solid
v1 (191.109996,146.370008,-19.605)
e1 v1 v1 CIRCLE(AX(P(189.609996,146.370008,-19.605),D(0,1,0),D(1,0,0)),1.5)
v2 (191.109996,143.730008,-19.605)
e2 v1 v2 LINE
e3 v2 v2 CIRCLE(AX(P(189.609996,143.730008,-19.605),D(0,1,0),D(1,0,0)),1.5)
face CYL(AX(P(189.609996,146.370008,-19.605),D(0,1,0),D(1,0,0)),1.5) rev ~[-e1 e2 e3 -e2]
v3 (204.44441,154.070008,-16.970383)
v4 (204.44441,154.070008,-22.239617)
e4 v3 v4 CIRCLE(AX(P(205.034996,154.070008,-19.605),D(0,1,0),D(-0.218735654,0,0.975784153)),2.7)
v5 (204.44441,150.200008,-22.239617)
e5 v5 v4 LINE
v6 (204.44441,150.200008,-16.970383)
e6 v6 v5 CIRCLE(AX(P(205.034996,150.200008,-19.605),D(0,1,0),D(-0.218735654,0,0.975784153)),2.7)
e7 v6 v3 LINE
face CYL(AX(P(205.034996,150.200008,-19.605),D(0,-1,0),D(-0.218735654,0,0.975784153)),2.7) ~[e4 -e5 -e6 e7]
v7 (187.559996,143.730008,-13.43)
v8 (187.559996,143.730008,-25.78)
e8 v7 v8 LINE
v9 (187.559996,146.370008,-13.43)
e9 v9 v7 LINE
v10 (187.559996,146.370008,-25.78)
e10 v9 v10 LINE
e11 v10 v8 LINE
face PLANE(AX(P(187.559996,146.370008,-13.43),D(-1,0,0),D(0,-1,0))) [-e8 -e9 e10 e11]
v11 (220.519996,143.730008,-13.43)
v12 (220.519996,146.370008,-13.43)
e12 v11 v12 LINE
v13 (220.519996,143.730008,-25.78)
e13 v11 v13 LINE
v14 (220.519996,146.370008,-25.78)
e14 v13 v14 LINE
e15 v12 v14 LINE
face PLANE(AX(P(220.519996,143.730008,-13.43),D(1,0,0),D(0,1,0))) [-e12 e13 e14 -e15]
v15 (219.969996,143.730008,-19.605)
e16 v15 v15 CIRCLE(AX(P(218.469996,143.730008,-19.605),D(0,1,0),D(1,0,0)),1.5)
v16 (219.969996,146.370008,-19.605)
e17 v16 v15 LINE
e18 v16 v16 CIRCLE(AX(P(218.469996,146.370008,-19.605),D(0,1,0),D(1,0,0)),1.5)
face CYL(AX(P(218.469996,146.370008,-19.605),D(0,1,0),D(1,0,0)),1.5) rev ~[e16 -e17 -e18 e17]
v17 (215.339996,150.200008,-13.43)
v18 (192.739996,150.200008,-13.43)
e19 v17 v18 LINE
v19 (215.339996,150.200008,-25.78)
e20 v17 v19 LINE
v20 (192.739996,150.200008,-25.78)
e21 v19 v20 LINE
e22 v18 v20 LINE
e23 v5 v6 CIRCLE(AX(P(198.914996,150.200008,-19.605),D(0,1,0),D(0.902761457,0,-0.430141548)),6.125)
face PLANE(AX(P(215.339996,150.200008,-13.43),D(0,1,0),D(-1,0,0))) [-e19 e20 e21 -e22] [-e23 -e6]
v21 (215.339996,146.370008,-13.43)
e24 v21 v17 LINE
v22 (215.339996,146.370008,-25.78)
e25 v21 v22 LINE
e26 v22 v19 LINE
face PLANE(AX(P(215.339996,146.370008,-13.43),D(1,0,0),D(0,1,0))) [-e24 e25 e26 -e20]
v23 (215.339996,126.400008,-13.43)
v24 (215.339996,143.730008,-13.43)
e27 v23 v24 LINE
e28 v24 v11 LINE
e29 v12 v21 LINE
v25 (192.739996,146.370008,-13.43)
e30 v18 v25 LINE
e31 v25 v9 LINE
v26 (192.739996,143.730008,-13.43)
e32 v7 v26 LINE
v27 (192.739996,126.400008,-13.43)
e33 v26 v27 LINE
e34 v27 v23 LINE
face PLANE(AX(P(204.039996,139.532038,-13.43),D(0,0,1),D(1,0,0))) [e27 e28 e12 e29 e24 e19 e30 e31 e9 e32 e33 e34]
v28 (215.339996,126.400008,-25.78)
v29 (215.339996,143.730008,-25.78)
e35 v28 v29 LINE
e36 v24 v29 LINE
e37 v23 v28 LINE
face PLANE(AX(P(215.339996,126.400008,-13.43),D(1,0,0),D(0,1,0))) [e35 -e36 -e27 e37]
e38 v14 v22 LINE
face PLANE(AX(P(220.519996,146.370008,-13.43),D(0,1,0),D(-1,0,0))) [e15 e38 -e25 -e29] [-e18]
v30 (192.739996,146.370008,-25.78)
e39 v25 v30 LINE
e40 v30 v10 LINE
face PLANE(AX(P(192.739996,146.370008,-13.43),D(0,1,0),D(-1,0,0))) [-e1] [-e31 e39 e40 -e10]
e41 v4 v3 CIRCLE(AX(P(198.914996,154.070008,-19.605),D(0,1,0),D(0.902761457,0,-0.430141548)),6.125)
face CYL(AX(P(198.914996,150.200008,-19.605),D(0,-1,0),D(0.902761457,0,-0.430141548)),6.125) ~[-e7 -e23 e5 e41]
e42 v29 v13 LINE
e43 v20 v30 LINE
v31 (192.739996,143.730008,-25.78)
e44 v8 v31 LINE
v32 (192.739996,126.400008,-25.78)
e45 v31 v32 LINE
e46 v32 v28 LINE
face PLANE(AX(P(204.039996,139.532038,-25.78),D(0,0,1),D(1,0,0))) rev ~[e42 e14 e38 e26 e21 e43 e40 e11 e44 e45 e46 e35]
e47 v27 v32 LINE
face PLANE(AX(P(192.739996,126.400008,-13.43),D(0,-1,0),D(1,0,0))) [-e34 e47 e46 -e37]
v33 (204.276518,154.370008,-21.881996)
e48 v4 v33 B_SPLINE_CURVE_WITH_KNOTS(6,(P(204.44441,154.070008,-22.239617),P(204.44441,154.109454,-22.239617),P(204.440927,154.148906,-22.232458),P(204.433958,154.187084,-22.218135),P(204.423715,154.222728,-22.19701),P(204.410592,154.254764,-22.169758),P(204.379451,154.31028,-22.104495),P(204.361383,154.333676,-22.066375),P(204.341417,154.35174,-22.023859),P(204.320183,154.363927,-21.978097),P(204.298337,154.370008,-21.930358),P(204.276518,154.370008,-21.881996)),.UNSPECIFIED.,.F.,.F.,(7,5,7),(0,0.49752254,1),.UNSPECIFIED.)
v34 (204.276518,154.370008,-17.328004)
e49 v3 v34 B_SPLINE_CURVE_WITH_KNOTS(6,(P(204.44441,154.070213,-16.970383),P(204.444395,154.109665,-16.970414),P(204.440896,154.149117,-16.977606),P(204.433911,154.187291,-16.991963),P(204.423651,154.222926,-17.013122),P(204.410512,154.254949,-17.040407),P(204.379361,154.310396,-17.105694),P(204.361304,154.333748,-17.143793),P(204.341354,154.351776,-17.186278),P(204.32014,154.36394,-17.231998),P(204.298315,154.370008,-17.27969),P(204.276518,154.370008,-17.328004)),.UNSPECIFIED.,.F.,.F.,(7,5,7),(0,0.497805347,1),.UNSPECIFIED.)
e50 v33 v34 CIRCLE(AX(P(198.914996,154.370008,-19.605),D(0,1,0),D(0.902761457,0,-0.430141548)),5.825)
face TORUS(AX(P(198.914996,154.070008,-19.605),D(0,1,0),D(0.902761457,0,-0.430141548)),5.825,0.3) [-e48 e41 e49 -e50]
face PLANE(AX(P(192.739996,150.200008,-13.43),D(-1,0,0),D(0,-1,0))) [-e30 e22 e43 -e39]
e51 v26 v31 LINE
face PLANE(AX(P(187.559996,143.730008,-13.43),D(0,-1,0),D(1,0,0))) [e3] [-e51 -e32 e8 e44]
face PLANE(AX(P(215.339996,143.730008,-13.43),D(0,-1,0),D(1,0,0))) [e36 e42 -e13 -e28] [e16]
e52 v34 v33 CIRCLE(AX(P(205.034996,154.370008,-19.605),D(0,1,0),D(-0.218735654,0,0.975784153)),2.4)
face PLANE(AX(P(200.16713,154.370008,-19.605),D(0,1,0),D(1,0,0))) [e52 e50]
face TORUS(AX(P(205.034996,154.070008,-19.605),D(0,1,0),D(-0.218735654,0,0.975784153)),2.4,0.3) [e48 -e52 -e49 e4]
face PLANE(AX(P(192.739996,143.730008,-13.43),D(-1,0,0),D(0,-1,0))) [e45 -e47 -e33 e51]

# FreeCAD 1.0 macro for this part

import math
import FreeCAD as App
import Part
import Sketcher

V = App.Vector
Q = App.Units.Quantity


def edges_at(feature, points):
    """Names of the edges that pass closest to the given points."""
    edges = feature.Shape.Edges
    near = lambda p: min(range(len(edges)), key=lambda i: edges[i].distToShape(Part.Vertex(*p))[0])
    return sorted({f"Edge{near(p) + 1}" for p in points})

doc = App.newDocument("Part")
body = doc.addObject("PartDesign::Body", "Body")

# Sketch on XY plane
sketch1 = body.newObject("Sketcher::SketchObject", "Sketch")
sketch1.AttachmentSupport = (doc.getObject("XY_Plane"), [""])
sketch1.MapMode = "FlatFace"
sketch1.addGeometry(Part.LineSegment(V(22.6, 23.8, 0), V(0, 23.8, 0)), False)
sketch1.addGeometry(Part.LineSegment(V(0, 23.8, 0), V(0, 20, 0)), False)
sketch1.addGeometry(Part.LineSegment(V(0, 20, 0), V(-5.2, 20, 0)), False)
sketch1.addGeometry(Part.LineSegment(V(-5.2, 20, 0), V(-5.2, 17.3, 0)), False)
sketch1.addGeometry(Part.LineSegment(V(-5.2, 17.3, 0), V(0, 17.3, 0)), False)
sketch1.addGeometry(Part.LineSegment(V(0, 17.3, 0), V(0, 0, 0)), False)
sketch1.addGeometry(Part.LineSegment(V(0, 0, 0), V(22.6, 0, 0)), False)
sketch1.addGeometry(Part.LineSegment(V(22.6, 0, 0), V(22.6, 17.3, 0)), False)
sketch1.addGeometry(Part.LineSegment(V(22.6, 17.3, 0), V(27.8, 17.3, 0)), False)
sketch1.addGeometry(Part.LineSegment(V(27.8, 17.3, 0), V(27.8, 20, 0)), False)
sketch1.addGeometry(Part.LineSegment(V(27.8, 20, 0), V(22.6, 20, 0)), False)
sketch1.addGeometry(Part.LineSegment(V(22.6, 20, 0), V(22.6, 23.8, 0)), False)
sketch1.addConstraint(Sketcher.Constraint("Coincident", 0, 2, 1, 1))
sketch1.addConstraint(Sketcher.Constraint("Coincident", 1, 2, 2, 1))
sketch1.addConstraint(Sketcher.Constraint("Coincident", 2, 2, 3, 1))
sketch1.addConstraint(Sketcher.Constraint("Coincident", 3, 2, 4, 1))
sketch1.addConstraint(Sketcher.Constraint("Coincident", 4, 2, 5, 1))
sketch1.addConstraint(Sketcher.Constraint("Coincident", 5, 2, 6, 1))
sketch1.addConstraint(Sketcher.Constraint("Coincident", 6, 2, 7, 1))
sketch1.addConstraint(Sketcher.Constraint("Coincident", 7, 2, 8, 1))
sketch1.addConstraint(Sketcher.Constraint("Coincident", 8, 2, 9, 1))
sketch1.addConstraint(Sketcher.Constraint("Coincident", 9, 2, 10, 1))
sketch1.addConstraint(Sketcher.Constraint("Coincident", 10, 2, 11, 1))
sketch1.addConstraint(Sketcher.Constraint("Coincident", 11, 2, 0, 1))
sketch1.addConstraint(Sketcher.Constraint("Horizontal", 0))
sketch1.addConstraint(Sketcher.Constraint("Vertical", 1))
sketch1.addConstraint(Sketcher.Constraint("Horizontal", 2))
sketch1.addConstraint(Sketcher.Constraint("Vertical", 3))
sketch1.addConstraint(Sketcher.Constraint("Horizontal", 4))
sketch1.addConstraint(Sketcher.Constraint("Vertical", 5))
sketch1.addConstraint(Sketcher.Constraint("Horizontal", 6))
sketch1.addConstraint(Sketcher.Constraint("Vertical", 7))
sketch1.addConstraint(Sketcher.Constraint("Horizontal", 8))
sketch1.addConstraint(Sketcher.Constraint("Vertical", 9))
sketch1.addConstraint(Sketcher.Constraint("Horizontal", 10))
sketch1.addConstraint(Sketcher.Constraint("Vertical", 11))
sketch1.addConstraint(Sketcher.Constraint("Coincident", 5, 2, -1, 1))
sketch1.addConstraint(Sketcher.Constraint("PointOnObject", 0, 2, -2))
sketch1.addConstraint(Sketcher.Constraint("Horizontal", 4, 2, 7, 2))
sketch1.addConstraint(Sketcher.Constraint("Horizontal", 2, 2, 9, 2))
sketch1.addConstraint(Sketcher.Constraint("Vertical", 7, 2, 10, 2))
sketch1.addConstraint(Sketcher.Constraint("Equal", 4, 8))
sketch1.addConstraint(Sketcher.Constraint("DistanceX", 0, 2, 0, 1, Q("22.6 mm")))
sketch1.addConstraint(Sketcher.Constraint("DistanceX", 2, 2, 2, 1, Q("5.18 mm")))
sketch1.addConstraint(Sketcher.Constraint("DistanceY", 1, 2, 1, 1, Q("3.83 mm")))
sketch1.addConstraint(Sketcher.Constraint("DistanceY", 3, 2, 3, 1, Q("2.64 mm")))
sketch1.addConstraint(Sketcher.Constraint("DistanceY", 5, 2, 5, 1, Q("17.33 mm")))
pad1 = body.newObject("PartDesign::Pad", "Pad")
pad1.Profile = sketch1
pad1.Length = 12.35

# Sketch on XZ plane
sketch2 = body.newObject("Sketcher::SketchObject", "Sketch001")
sketch2.AttachmentSupport = (doc.getObject("XZ_Plane"), [""])
sketch2.MapMode = "FlatFace"
sketch2.AttachmentOffset = App.Placement(V(0, 0, -23.8), App.Rotation())
sketch2.addGeometry(Part.ArcOfCircle(Part.Circle(V(16.4, 6.2, 0), V(0, 0, 1), 6.1), math.radians(-155), math.radians(155)), False)
sketch2.addGeometry(Part.ArcOfCircle(Part.Circle(V(10.3, 6.2, 0), V(0, 0, 1), 2.7), math.radians(77), math.radians(283)), False)
sketch2.addConstraint(Sketcher.Constraint("Coincident", 0, 1, 1, 2))
sketch2.addConstraint(Sketcher.Constraint("Coincident", 1, 1, 0, 2))
sketch2.addConstraint(Sketcher.Constraint("Horizontal", 0, 3, 1, 3))
sketch2.addConstraint(Sketcher.Constraint("Radius", 1, Q("2.7 mm")))
sketch2.addConstraint(Sketcher.Constraint("Radius", 0, Q("6.125 mm")))
sketch2.addConstraint(Sketcher.Constraint("DistanceX", 1, 3, 0, 3, Q("6.12 mm")))
sketch2.addConstraint(Sketcher.Constraint("DistanceX", -1, 1, 0, 3, Q("16.425 mm")))
sketch2.addConstraint(Sketcher.Constraint("DistanceY", -1, 1, 0, 3, Q("6.175 mm")))
pad2 = body.newObject("PartDesign::Pad", "Pad001")
pad2.Profile = sketch2
pad2.Length = 4.17
pad2.Reversed = True

# Sketch on XZ plane
sketch3 = body.newObject("Sketcher::SketchObject", "Sketch002")
sketch3.AttachmentSupport = (doc.getObject("XZ_Plane"), [""])
sketch3.MapMode = "FlatFace"
sketch3.AttachmentOffset = App.Placement(V(0, 0, -19.97), App.Rotation())
sketch3.addGeometry(Part.Circle(V(25.7, 6.2, 0), V(0, 0, 1), 1.5), False)
sketch3.addGeometry(Part.Circle(V(-3.1, 6.2, 0), V(0, 0, 1), 1.5), False)
sketch3.addConstraint(Sketcher.Constraint("Equal", 0, 1))
sketch3.addConstraint(Sketcher.Constraint("Horizontal", 0, 3, 1, 3))
sketch3.addConstraint(Sketcher.Constraint("Diameter", 0, Q("3 mm")))
sketch3.addConstraint(Sketcher.Constraint("DistanceX", -1, 1, 0, 3, Q("25.73 mm")))
sketch3.addConstraint(Sketcher.Constraint("DistanceX", 1, 3, -1, 1, Q("3.13 mm")))
sketch3.addConstraint(Sketcher.Constraint("DistanceY", -1, 1, 0, 3, Q("6.175 mm")))
pocket1 = body.newObject("PartDesign::Pocket", "Pocket")
pocket1.Profile = sketch3
pocket1.Length = 5
pocket1.Reversed = True
doc.recompute()

fillet = body.newObject("PartDesign::Fillet", "Fillet")
fillet.Base = (pocket1, edges_at(pocket1, [(22.55, 27.97, 6.175), (7.605, 27.97, 6.175)]))
fillet.Radius = 0.3
body2 = doc.addObject("PartDesign::Body", "Body001")
doc.recompute()

body.Placement = App.Placement(V(215.339996, 126.400008, -13.43), App.Rotation(V(0, 1, 0), 180))
boolean = body2.newObject("PartDesign::Boolean", "Boolean")
boolean.Type = "Fuse"
boolean.addObjects([body])

doc.recompute()
